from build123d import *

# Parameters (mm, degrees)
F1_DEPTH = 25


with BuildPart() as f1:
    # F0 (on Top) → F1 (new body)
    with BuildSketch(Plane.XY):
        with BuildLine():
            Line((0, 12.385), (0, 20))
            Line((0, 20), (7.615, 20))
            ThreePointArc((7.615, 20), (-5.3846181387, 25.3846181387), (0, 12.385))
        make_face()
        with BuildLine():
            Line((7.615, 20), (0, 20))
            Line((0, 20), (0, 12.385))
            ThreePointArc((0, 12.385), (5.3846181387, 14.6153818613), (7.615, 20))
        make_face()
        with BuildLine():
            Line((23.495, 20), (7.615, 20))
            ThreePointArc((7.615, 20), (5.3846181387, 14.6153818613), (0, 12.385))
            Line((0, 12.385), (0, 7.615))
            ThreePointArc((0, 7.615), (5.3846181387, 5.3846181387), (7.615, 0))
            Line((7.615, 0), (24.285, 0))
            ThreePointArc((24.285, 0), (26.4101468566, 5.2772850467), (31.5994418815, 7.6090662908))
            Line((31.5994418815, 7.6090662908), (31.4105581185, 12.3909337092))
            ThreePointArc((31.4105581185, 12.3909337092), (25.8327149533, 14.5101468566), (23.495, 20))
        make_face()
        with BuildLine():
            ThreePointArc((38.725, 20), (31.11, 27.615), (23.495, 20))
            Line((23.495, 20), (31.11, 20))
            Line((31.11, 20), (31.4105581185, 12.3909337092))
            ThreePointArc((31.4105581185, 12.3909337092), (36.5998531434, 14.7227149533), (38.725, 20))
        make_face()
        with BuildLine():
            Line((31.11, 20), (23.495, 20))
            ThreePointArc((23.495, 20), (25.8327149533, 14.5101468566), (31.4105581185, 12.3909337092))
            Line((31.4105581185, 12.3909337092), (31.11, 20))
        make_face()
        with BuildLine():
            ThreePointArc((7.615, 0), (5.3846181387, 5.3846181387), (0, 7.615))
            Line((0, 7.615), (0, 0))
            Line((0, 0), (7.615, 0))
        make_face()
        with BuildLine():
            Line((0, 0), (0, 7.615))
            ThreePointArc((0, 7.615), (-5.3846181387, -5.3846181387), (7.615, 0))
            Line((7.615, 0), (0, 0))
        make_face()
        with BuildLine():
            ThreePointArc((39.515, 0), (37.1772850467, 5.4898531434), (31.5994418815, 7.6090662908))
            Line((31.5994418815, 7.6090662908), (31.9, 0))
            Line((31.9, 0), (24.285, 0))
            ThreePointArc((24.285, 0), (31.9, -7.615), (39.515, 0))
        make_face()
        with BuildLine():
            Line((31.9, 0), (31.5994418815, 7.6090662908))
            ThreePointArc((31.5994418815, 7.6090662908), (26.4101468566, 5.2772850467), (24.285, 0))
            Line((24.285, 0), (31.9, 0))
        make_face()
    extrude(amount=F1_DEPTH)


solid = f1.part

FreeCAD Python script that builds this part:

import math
import FreeCAD as App
import Part
import Sketcher

V = App.Vector

doc = App.newDocument("Part")
body = doc.addObject("PartDesign::Body", "Body")

# Sketch on XY plane
sketch1 = body.newObject("Sketcher::SketchObject", "Sketch")
sketch1.AttachmentSupport = (doc.getObject("XY_Plane"), [""])
sketch1.MapMode = "FlatFace"
sketch1.addGeometry(Part.ArcOfCircle(Part.Circle(V(0, 20, 0), V(0, 0, 1), 7.6), math.radians(0), math.radians(270)), False)
sketch1.addGeometry(Part.LineSegment(V(0, 12.4, 0), V(0, 7.6, 0)), False)
sketch1.addGeometry(Part.ArcOfCircle(Part.Circle(V(0, 0, 0), V(0, 0, 1), 7.6), math.radians(90), math.radians(360)), False)
sketch1.addGeometry(Part.LineSegment(V(7.6, 0, 0), V(24.3, 0, 0)), False)
sketch1.addGeometry(Part.ArcOfCircle(Part.Circle(V(31.9, 0, 0), V(0, 0, 1), 7.6), math.radians(180), math.radians(360)), False)
sketch1.addGeometry(Part.ArcOfCircle(Part.Circle(V(31.9, 0, 0), V(0, 0, 1), 7.6), math.radians(0), math.radians(92)), False)
sketch1.addGeometry(Part.LineSegment(V(31.6, 7.6, 0), V(31.4, 12.4, 0)), False)
sketch1.addGeometry(Part.ArcOfCircle(Part.Circle(V(31.1, 20, 0), V(0, 0, 1), 7.6), math.radians(-88), math.radians(0)), False)
sketch1.addGeometry(Part.ArcOfCircle(Part.Circle(V(31.1, 20, 0), V(0, 0, 1), 7.6), math.radians(0), math.radians(180)), False)
sketch1.addGeometry(Part.LineSegment(V(23.5, 20, 0), V(7.6, 20, 0)), False)
sketch1.addConstraint(Sketcher.Constraint("Coincident", 0, 2, 1, 1))
sketch1.addConstraint(Sketcher.Constraint("Coincident", 1, 2, 2, 1))
sketch1.addConstraint(Sketcher.Constraint("Coincident", 2, 2, 3, 1))
sketch1.addConstraint(Sketcher.Constraint("Coincident", 3, 2, 4, 1))
sketch1.addConstraint(Sketcher.Constraint("Tangent", 4, 2, 5, 1))
sketch1.addConstraint(Sketcher.Constraint("Coincident", 5, 2, 6, 1))
sketch1.addConstraint(Sketcher.Constraint("Coincident", 6, 2, 7, 1))
sketch1.addConstraint(Sketcher.Constraint("Tangent", 7, 2, 8, 1))
sketch1.addConstraint(Sketcher.Constraint("Coincident", 8, 2, 9, 1))
sketch1.addConstraint(Sketcher.Constraint("Coincident", 9, 2, 0, 1))
sketch1.addConstraint(Sketcher.Constraint("Vertical", 1))
sketch1.addConstraint(Sketcher.Constraint("Horizontal", 3))
sketch1.addConstraint(Sketcher.Constraint("Horizontal", 9))
sketch1.addConstraint(Sketcher.Constraint("Coincident", 2, 3, -1, 1))
sketch1.addConstraint(Sketcher.Constraint("Equal", 0, 2))
sketch1.addConstraint(Sketcher.Constraint("Equal", 2, 4))
sketch1.addConstraint(Sketcher.Constraint("Equal", 4, 5))
sketch1.addConstraint(Sketcher.Constraint("Equal", 5, 7))
sketch1.addConstraint(Sketcher.Constraint("Equal", 7, 8))
sketch1.addConstraint(Sketcher.Constraint("PointOnObject", 0, 3, -2))
sketch1.addConstraint(Sketcher.Constraint("PointOnObject", 4, 3, -1))
sketch1.addConstraint(Sketcher.Constraint("PointOnObject", 0, 2, -2))
sketch1.addConstraint(Sketcher.Constraint("PointOnObject", 2, 2, -1))
sketch1.addConstraint(Sketcher.Constraint("PointOnObject", 4, 2, -1))
sketch1.addConstraint(Sketcher.Constraint("Horizontal", 0, 3, 7, 3))
sketch1.addConstraint(Sketcher.Constraint("Horizontal", 8, 3, 7, 2))
sketch1.addConstraint(Sketcher.Constraint("Horizontal", 7, 2, 8, 2))
sketch1.addConstraint(Sketcher.Constraint("DistanceY", -1, 1, 0, 3, 20.0))
sketch1.addConstraint(Sketcher.Constraint("Radius", 0, 7.615))
sketch1.addConstraint(Sketcher.Constraint("DistanceX", 3, 1, 3, 2, 16.67))
sketch1.addConstraint(Sketcher.Constraint("DistanceX", 9, 2, 9, 1, 15.88))
sketch1.addConstraint(Sketcher.Constraint("DistanceX", -1, 1, 5, 2, 31.599442))
sketch1.addConstraint(Sketcher.Constraint("DistanceX", -1, 1, 6, 2, 31.410558))
pad1 = body.newObject("PartDesign::Pad", "Pad")
pad1.Profile = sketch1
pad1.Length = 25

doc.recompute()
